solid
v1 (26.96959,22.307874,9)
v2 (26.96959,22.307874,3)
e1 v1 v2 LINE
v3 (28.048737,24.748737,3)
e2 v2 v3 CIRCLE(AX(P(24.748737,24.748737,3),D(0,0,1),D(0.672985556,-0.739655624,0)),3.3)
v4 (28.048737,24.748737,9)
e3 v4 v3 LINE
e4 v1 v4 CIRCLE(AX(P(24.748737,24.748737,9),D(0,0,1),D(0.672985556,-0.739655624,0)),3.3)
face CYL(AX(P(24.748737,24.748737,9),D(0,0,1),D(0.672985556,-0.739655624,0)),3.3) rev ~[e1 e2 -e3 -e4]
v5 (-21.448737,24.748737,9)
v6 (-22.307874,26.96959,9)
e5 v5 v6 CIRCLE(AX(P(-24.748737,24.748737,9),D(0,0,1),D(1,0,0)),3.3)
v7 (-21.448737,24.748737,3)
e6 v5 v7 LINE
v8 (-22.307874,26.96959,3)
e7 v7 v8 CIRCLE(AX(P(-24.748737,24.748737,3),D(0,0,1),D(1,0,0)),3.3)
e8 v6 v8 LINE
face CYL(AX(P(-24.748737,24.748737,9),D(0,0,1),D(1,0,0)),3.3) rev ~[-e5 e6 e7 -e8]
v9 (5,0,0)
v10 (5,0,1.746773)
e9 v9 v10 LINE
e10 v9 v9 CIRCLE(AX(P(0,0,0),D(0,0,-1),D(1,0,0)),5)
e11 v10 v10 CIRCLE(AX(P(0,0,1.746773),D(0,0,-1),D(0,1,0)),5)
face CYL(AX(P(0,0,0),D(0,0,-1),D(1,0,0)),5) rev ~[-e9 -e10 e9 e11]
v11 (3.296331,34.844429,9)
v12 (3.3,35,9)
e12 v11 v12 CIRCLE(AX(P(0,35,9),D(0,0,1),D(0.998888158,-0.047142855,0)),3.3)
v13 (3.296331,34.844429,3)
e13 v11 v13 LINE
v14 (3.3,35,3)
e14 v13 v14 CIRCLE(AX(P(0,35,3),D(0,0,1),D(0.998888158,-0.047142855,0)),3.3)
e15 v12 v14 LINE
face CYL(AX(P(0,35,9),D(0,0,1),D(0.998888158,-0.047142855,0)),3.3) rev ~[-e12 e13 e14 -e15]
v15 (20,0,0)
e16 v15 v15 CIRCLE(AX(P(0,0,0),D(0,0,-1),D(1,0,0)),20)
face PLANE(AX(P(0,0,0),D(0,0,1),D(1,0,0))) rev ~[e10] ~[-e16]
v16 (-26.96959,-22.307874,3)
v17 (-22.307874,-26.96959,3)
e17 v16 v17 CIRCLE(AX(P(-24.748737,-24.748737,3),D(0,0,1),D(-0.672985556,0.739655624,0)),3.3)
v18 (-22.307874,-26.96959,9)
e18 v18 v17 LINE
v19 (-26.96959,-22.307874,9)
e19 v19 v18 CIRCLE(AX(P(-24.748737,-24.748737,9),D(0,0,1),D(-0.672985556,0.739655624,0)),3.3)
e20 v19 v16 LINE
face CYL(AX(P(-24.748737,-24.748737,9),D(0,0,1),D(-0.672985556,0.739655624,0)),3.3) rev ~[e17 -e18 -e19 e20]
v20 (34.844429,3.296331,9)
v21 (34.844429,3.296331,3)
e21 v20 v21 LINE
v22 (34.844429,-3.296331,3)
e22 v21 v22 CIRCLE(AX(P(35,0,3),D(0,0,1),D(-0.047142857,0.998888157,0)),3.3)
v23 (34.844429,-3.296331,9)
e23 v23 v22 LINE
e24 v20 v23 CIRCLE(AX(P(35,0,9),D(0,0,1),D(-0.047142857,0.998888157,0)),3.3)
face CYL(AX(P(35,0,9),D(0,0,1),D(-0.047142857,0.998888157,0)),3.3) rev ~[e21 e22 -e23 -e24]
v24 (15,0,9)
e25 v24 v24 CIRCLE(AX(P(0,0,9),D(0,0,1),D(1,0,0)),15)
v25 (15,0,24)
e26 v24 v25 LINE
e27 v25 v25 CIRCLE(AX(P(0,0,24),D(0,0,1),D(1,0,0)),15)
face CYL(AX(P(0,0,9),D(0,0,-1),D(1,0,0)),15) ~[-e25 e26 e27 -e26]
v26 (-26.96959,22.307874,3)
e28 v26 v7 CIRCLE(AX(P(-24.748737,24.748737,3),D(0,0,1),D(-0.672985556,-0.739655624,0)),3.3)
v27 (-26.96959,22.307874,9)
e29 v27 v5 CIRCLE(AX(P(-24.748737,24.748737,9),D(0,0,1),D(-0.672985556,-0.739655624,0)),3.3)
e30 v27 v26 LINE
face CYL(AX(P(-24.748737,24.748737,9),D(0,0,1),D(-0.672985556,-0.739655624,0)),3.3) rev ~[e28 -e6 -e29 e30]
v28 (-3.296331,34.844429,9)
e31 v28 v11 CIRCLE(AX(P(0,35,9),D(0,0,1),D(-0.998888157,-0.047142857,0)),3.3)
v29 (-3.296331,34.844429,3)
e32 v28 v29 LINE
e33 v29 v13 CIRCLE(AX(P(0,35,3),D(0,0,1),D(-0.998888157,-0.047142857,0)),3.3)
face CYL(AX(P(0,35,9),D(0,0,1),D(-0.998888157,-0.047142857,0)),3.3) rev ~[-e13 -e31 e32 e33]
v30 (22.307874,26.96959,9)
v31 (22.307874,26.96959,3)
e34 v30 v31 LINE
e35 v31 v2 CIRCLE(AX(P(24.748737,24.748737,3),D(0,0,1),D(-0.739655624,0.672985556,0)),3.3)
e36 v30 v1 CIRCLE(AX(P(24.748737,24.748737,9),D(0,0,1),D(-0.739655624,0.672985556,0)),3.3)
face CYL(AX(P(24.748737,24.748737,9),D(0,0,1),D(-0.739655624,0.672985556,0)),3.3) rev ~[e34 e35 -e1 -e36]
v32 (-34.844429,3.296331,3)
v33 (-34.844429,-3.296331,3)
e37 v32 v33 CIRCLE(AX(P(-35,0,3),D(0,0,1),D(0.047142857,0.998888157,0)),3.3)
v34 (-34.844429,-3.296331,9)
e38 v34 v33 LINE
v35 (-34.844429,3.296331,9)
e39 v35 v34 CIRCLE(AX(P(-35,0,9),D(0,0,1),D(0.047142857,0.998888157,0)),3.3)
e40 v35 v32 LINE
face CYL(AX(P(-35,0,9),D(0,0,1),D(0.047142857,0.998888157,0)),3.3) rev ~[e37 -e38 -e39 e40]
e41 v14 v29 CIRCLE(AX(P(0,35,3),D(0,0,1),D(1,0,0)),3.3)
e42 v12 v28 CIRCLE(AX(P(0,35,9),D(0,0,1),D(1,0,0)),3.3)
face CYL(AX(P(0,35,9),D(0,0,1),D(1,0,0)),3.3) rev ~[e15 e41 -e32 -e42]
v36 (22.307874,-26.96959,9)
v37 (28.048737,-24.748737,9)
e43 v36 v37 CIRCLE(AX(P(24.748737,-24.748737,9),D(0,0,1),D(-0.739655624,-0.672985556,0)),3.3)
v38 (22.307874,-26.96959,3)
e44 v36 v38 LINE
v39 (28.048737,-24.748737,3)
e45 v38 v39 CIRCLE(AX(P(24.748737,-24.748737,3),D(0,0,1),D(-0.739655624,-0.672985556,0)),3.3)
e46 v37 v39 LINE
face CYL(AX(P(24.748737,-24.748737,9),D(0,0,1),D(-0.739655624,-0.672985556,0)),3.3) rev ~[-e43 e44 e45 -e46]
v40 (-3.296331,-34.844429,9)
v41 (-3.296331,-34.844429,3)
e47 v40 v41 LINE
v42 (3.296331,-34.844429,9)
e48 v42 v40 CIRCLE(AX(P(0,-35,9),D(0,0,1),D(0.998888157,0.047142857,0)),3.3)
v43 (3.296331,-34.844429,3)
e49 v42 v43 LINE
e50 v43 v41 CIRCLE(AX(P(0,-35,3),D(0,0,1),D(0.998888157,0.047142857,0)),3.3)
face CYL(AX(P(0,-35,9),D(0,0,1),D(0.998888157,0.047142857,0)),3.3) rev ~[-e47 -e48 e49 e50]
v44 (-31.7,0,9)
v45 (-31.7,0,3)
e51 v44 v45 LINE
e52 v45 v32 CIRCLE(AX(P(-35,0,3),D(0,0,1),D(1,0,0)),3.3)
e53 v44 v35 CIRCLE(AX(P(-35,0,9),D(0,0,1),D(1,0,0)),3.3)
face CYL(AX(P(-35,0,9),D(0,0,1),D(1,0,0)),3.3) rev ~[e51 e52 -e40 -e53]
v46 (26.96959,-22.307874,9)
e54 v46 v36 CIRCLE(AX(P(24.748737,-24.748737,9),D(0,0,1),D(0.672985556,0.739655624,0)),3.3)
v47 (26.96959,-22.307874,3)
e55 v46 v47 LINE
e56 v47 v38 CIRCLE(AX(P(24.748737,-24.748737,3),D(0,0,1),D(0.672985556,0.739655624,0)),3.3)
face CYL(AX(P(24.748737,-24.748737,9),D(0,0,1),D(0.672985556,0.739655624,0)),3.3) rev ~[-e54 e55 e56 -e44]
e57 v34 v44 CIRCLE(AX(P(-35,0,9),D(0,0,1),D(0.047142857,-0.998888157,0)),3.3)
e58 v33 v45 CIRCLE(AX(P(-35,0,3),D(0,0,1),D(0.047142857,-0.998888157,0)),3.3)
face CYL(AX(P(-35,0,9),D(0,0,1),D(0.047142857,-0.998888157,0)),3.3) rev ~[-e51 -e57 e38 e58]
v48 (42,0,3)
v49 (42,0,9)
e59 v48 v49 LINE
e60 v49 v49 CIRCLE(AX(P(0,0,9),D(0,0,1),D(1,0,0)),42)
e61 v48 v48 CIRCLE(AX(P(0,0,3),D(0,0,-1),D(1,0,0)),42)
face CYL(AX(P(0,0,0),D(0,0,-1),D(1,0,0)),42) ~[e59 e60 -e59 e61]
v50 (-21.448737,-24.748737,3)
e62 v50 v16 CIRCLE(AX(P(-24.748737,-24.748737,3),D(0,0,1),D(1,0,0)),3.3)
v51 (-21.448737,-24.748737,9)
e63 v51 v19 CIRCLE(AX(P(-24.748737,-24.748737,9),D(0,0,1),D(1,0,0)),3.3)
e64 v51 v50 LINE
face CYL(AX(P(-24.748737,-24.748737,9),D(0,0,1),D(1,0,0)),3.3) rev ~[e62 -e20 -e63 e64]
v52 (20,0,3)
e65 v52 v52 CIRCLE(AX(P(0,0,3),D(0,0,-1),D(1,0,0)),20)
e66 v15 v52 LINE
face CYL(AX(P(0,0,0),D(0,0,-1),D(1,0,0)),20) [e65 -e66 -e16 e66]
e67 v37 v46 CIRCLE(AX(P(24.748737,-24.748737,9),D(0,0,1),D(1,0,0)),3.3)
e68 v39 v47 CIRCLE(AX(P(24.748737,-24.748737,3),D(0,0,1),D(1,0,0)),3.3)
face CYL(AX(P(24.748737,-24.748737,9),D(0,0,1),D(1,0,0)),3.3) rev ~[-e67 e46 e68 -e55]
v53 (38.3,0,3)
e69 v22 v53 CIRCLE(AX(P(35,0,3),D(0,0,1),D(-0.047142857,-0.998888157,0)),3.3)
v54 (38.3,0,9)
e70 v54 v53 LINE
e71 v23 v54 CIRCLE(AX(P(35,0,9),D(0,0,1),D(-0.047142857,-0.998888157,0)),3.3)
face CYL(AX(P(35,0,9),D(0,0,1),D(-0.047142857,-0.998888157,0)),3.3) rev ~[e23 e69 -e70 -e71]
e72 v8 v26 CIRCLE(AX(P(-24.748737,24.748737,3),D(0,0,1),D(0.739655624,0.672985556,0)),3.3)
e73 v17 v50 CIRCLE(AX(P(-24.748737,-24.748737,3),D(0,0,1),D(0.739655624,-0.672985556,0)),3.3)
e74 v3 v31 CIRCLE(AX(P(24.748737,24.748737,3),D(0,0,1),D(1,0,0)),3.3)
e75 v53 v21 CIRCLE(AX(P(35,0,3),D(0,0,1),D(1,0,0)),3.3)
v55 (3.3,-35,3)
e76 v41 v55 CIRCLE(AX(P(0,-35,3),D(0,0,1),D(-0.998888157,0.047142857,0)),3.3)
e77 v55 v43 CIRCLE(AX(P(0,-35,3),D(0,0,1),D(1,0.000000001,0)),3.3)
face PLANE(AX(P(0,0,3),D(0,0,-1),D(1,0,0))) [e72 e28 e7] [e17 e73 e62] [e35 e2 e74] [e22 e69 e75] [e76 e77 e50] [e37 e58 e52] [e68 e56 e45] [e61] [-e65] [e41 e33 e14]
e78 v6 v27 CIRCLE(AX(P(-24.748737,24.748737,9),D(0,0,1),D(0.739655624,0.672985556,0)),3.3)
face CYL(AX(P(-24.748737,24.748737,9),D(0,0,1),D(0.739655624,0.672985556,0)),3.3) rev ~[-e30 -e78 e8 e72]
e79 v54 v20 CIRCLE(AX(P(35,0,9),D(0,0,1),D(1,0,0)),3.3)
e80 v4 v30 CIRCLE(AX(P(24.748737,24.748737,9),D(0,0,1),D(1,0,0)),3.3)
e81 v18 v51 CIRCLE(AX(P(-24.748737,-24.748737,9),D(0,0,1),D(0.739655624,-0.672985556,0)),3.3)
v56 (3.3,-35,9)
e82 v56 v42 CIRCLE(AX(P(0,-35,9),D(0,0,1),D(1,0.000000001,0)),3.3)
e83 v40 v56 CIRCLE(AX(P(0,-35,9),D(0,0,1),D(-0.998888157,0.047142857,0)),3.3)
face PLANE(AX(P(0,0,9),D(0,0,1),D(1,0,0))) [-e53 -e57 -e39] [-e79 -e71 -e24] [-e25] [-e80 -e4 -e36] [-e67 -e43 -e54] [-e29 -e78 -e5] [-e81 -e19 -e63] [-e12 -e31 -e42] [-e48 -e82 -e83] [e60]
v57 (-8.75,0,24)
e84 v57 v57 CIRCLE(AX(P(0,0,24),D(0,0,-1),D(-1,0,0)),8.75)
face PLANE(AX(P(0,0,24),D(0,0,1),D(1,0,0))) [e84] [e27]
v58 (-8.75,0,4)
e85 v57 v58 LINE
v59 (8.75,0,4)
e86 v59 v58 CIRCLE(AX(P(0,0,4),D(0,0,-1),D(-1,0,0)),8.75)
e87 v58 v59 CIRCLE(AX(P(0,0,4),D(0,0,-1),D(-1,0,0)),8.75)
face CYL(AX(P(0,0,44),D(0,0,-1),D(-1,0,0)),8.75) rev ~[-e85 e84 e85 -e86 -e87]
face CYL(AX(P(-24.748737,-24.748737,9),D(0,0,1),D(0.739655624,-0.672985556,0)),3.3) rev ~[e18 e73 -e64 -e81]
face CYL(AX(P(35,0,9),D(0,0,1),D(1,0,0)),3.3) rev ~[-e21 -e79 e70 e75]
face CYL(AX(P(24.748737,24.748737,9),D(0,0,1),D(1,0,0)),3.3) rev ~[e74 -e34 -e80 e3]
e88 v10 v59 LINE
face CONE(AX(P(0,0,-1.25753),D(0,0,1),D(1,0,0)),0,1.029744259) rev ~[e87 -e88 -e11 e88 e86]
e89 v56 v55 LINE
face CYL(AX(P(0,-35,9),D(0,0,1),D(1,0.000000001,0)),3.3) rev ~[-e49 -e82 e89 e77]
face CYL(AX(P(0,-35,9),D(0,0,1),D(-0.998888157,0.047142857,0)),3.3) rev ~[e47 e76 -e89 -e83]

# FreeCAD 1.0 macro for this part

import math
import FreeCAD as App
import Part
import Sketcher
from FreeCAD import Vector

doc = App.newDocument("Part")
body = doc.addObject("PartDesign::Body", "Body")

sketch1 = body.newObject("Sketcher::SketchObject", "Sketch")
sketch1.AttachmentSupport = (doc.getObject("XY_Plane"), [""])
sketch1.MapMode = "FlatFace"
sketch1.addGeometry(Part.Circle(Vector(0, 0, 0), Vector(0, 0, 1), 42), False)
sketch1.addConstraint(Sketcher.Constraint("Coincident", 0, 3, -1, 1))
sketch1.addConstraint(Sketcher.Constraint("Diameter", 0, 84.0))
pad1 = body.newObject("PartDesign::Pad", "Pad")
pad1.Profile = sketch1
pad1.Length = 9

sketch2 = body.newObject("Sketcher::SketchObject", "Sketch001")
sketch2.AttachmentSupport = (doc.getObject("XY_Plane"), [""])
sketch2.MapMode = "FlatFace"
sketch2.addGeometry(Part.Circle(Vector(0, 0, 0), Vector(0, 0, 1), 42), False)
sketch2.addGeometry(Part.Circle(Vector(0, 0, 0), Vector(0, 0, 1), 20), False)
sketch2.addConstraint(Sketcher.Constraint("Coincident", 0, 3, -1, 1))
sketch2.addConstraint(Sketcher.Constraint("Coincident", 1, 3, -1, 1))
sketch2.addConstraint(Sketcher.Constraint("Diameter", 0, 84.0))
sketch2.addConstraint(Sketcher.Constraint("Diameter", 1, 40.0))
pocket1 = body.newObject("PartDesign::Pocket", "Pocket")
pocket1.Profile = sketch2
pocket1.Length = 3
pocket1.Reversed = True

sketch3 = body.newObject("Sketcher::SketchObject", "Sketch002")
sketch3.AttachmentSupport = (doc.getObject("XY_Plane"), [""])
sketch3.MapMode = "FlatFace"
sketch3.AttachmentOffset = App.Placement(Vector(0, 0, 9), App.Rotation())
sketch3.addGeometry(Part.Circle(Vector(0, 0, 0), Vector(0, 0, 1), 15), False)
sketch3.addConstraint(Sketcher.Constraint("Coincident", 0, 3, -1, 1))
sketch3.addConstraint(Sketcher.Constraint("Diameter", 0, 30.0))
pad2 = body.newObject("PartDesign::Pad", "Pad001")
pad2.Profile = sketch3
pad2.Length = 15

sketch4 = body.newObject("Sketcher::SketchObject", "Sketch003")
sketch4.AttachmentSupport = (doc.getObject("XY_Plane"), [""])
sketch4.MapMode = "FlatFace"
sketch4.AttachmentOffset = App.Placement(Vector(0, 0, 9), App.Rotation())
sketch4.addGeometry(Part.ArcOfCircle(Part.Circle(Vector(0, 35, 0), Vector(0, 0, 1), 3.3), math.radians(-177), math.radians(-3)), False)
sketch4.addGeometry(Part.ArcOfCircle(Part.Circle(Vector(0, 35, 0), Vector(0, 0, 1), 3.3), math.radians(-2.7), math.radians(0)), False)
sketch4.addGeometry(Part.ArcOfCircle(Part.Circle(Vector(0, 35, 0), Vector(0, 0, 1), 3.3), math.radians(0), math.radians(183)), False)
sketch4.addGeometry(Part.ArcOfCircle(Part.Circle(Vector(-24.75, 24.75, 0), Vector(0, 0, 1), 3.3), math.radians(0), math.radians(42)), False)
sketch4.addGeometry(Part.ArcOfCircle(Part.Circle(Vector(-24.75, 24.75, 0), Vector(0, 0, 1), 3.3), math.radians(42), math.radians(228)), False)
sketch4.addGeometry(Part.ArcOfCircle(Part.Circle(Vector(-24.75, 24.75, 0), Vector(0, 0, 1), 3.3), math.radians(-132), math.radians(0)), False)
sketch4.addGeometry(Part.ArcOfCircle(Part.Circle(Vector(-35, 0, 0), Vector(0, 0, 1), 3.3), math.radians(0), math.radians(87)), False)
sketch4.addGeometry(Part.ArcOfCircle(Part.Circle(Vector(-35, 0, 0), Vector(0, 0, 1), 3.3), math.radians(87), math.radians(273)), False)
sketch4.addGeometry(Part.ArcOfCircle(Part.Circle(Vector(-35, 0, 0), Vector(0, 0, 1), 3.3), math.radians(-87), math.radians(0)), False)
sketch4.addGeometry(Part.ArcOfCircle(Part.Circle(Vector(-24.75, -24.75, 0), Vector(0, 0, 1), 3.3), math.radians(132), math.radians(318)), False)
sketch4.addGeometry(Part.ArcOfCircle(Part.Circle(Vector(-24.75, -24.75, 0), Vector(0, 0, 1), 3.3), math.radians(-42), math.radians(0)), False)
sketch4.addGeometry(Part.ArcOfCircle(Part.Circle(Vector(-24.75, -24.75, 0), Vector(0, 0, 1), 3.3), math.radians(0), math.radians(132)), False)
sketch4.addGeometry(Part.ArcOfCircle(Part.Circle(Vector(0, -35, 0), Vector(0, 0, 1), 3.3), math.radians(3), math.radians(177)), False)
sketch4.addGeometry(Part.ArcOfCircle(Part.Circle(Vector(0, -35, 0), Vector(0, 0, 1), 3.3), math.radians(177), math.radians(360)), False)
sketch4.addGeometry(Part.ArcOfCircle(Part.Circle(Vector(0, -35, 0), Vector(0, 0, 1), 3.3), math.radians(0), math.radians(2.7)), False)
sketch4.addGeometry(Part.ArcOfCircle(Part.Circle(Vector(24.75, -24.75, 0), Vector(0, 0, 1), 3.3), math.radians(0), math.radians(48)), False)
sketch4.addGeometry(Part.ArcOfCircle(Part.Circle(Vector(24.75, -24.75, 0), Vector(0, 0, 1), 3.3), math.radians(48), math.radians(222)), False)
sketch4.addGeometry(Part.ArcOfCircle(Part.Circle(Vector(24.75, -24.75, 0), Vector(0, 0, 1), 3.3), math.radians(-138), math.radians(0)), False)
sketch4.addGeometry(Part.ArcOfCircle(Part.Circle(Vector(35, 0, 0), Vector(0, 0, 1), 3.3), math.radians(-93), math.radians(0)), False)
sketch4.addGeometry(Part.ArcOfCircle(Part.Circle(Vector(35, 0, 0), Vector(0, 0, 1), 3.3), math.radians(0), math.radians(93)), False)
sketch4.addGeometry(Part.ArcOfCircle(Part.Circle(Vector(35, 0, 0), Vector(0, 0, 1), 3.3), math.radians(93), math.radians(267)), False)
sketch4.addGeometry(Part.ArcOfCircle(Part.Circle(Vector(24.75, 24.75, 0), Vector(0, 0, 1), 3.3), math.radians(138), math.radians(312)), False)
sketch4.addGeometry(Part.ArcOfCircle(Part.Circle(Vector(24.75, 24.75, 0), Vector(0, 0, 1), 3.3), math.radians(-48), math.radians(0)), False)
sketch4.addGeometry(Part.ArcOfCircle(Part.Circle(Vector(24.75, 24.75, 0), Vector(0, 0, 1), 3.3), math.radians(0), math.radians(138)), False)
sketch4.addConstraint(Sketcher.Constraint("Tangent", 0, 2, 1, 1))
sketch4.addConstraint(Sketcher.Constraint("Tangent", 1, 2, 2, 1))
sketch4.addConstraint(Sketcher.Constraint("Tangent", 2, 2, 0, 1))
sketch4.addConstraint(Sketcher.Constraint("Tangent", 3, 2, 4, 1))
sketch4.addConstraint(Sketcher.Constraint("Tangent", 4, 2, 5, 1))
sketch4.addConstraint(Sketcher.Constraint("Tangent", 5, 2, 3, 1))
sketch4.addConstraint(Sketcher.Constraint("Tangent", 6, 2, 7, 1))
sketch4.addConstraint(Sketcher.Constraint("Tangent", 7, 2, 8, 1))
sketch4.addConstraint(Sketcher.Constraint("Tangent", 8, 2, 6, 1))
sketch4.addConstraint(Sketcher.Constraint("Tangent", 9, 2, 10, 1))
sketch4.addConstraint(Sketcher.Constraint("Tangent", 10, 2, 11, 1))
sketch4.addConstraint(Sketcher.Constraint("Tangent", 11, 2, 9, 1))
sketch4.addConstraint(Sketcher.Constraint("Tangent", 12, 2, 13, 1))
sketch4.addConstraint(Sketcher.Constraint("Tangent", 13, 2, 14, 1))
sketch4.addConstraint(Sketcher.Constraint("Tangent", 14, 2, 12, 1))
sketch4.addConstraint(Sketcher.Constraint("Tangent", 15, 2, 16, 1))
sketch4.addConstraint(Sketcher.Constraint("Tangent", 16, 2, 17, 1))
sketch4.addConstraint(Sketcher.Constraint("Tangent", 17, 2, 15, 1))
sketch4.addConstraint(Sketcher.Constraint("Tangent", 18, 2, 19, 1))
sketch4.addConstraint(Sketcher.Constraint("Tangent", 19, 2, 20, 1))
sketch4.addConstraint(Sketcher.Constraint("Tangent", 20, 2, 18, 1))
sketch4.addConstraint(Sketcher.Constraint("Tangent", 21, 2, 22, 1))
sketch4.addConstraint(Sketcher.Constraint("Tangent", 22, 2, 23, 1))
sketch4.addConstraint(Sketcher.Constraint("Tangent", 23, 2, 21, 1))
sketch4.addConstraint(Sketcher.Constraint("Equal", 2, 3))
sketch4.addConstraint(Sketcher.Constraint("Equal", 5, 6))
sketch4.addConstraint(Sketcher.Constraint("Equal", 8, 9))
sketch4.addConstraint(Sketcher.Constraint("Equal", 11, 12))
sketch4.addConstraint(Sketcher.Constraint("Equal", 14, 15))
sketch4.addConstraint(Sketcher.Constraint("Equal", 17, 18))
sketch4.addConstraint(Sketcher.Constraint("Equal", 20, 21))
sketch4.addConstraint(Sketcher.Constraint("Symmetric", 0, 3, 12, 3, -1, 1))
sketch4.addConstraint(Sketcher.Constraint("Symmetric", 3, 3, 15, 3, -1, 1))
sketch4.addConstraint(Sketcher.Constraint("Symmetric", 6, 3, 18, 3, -1, 1))
sketch4.addConstraint(Sketcher.Constraint("Symmetric", 9, 3, 21, 3, -1, 1))
sketch4.addConstraint(Sketcher.Constraint("Symmetric", 9, 3, 15, 3, -2))
sketch4.addConstraint(Sketcher.Constraint("Symmetric", 0, 2, 2, 2, -2))
sketch4.addConstraint(Sketcher.Constraint("Symmetric", 6, 2, 19, 2, -2))
sketch4.addConstraint(Sketcher.Constraint("PointOnObject", 8, 2, -1))
sketch4.addConstraint(Sketcher.Constraint("PointOnObject", 18, 2, -1))
sketch4.addConstraint(Sketcher.Constraint("Horizontal", 2, 3, 1, 2))
sketch4.addConstraint(Sketcher.Constraint("Horizontal", 23, 3, 5, 2))
sketch4.addConstraint(Sketcher.Constraint("Horizontal", 17, 3, 10, 2))
sketch4.addConstraint(Sketcher.Constraint("Horizontal", 14, 3, 13, 2))
sketch4.addConstraint(Sketcher.Constraint("Horizontal", 12, 2, 14, 2))
sketch4.addConstraint(Sketcher.Constraint("Horizontal", 11, 2, 15, 2))
sketch4.addConstraint(Sketcher.Constraint("Horizontal", 9, 2, 16, 2))
sketch4.addConstraint(Sketcher.Constraint("Horizontal", 10, 2, 17, 2))
sketch4.addConstraint(Sketcher.Constraint("Horizontal", 7, 2, 20, 2))
sketch4.addConstraint(Sketcher.Constraint("Horizontal", 4, 2, 21, 2))
sketch4.addConstraint(Sketcher.Constraint("Horizontal", 5, 2, 22, 2))
sketch4.addConstraint(Sketcher.Constraint("Horizontal", 3, 2, 23, 2))
sketch4.addConstraint(Sketcher.Constraint("Vertical", 6, 2, 7, 2))
sketch4.addConstraint(Sketcher.Constraint("Vertical", 3, 2, 9, 2))
sketch4.addConstraint(Sketcher.Constraint("Vertical", 4, 2, 11, 2))
sketch4.addConstraint(Sketcher.Constraint("Vertical", 2, 2, 12, 2))
sketch4.addConstraint(Sketcher.Constraint("Radius", 0, 3.3))
sketch4.addConstraint(Sketcher.Constraint("DistanceY", -1, 1, 0, 3, 35.0))
sketch4.addConstraint(Sketcher.Constraint("DistanceX", 6, 3, -1, 1, 35.0))
sketch4.addConstraint(Sketcher.Constraint("DistanceX", -1, 1, 0, 2, 3.296331))
sketch4.addConstraint(Sketcher.Constraint("DistanceY", -1, 1, 3, 2, 26.96959))
sketch4.addConstraint(Sketcher.Constraint("DistanceX", 4, 2, -1, 1, 26.96959))
sketch4.addConstraint(Sketcher.Constraint("DistanceX", 6, 2, -1, 1, 34.844429))
sketch4.addConstraint(Sketcher.Constraint("DistanceY", 23, 3, 0, 2, 10.095691))
sketch4.addConstraint(Sketcher.Constraint("DistanceX", 6, 2, 3, 3, 10.095691))
pocket2 = body.newObject("PartDesign::Pocket", "Pocket001")
pocket2.Profile = sketch4
pocket2.Length = 25

sketch5 = body.newObject("Sketcher::SketchObject", "Sketch004")
sketch5.AttachmentSupport = (doc.getObject("XY_Plane"), [""])
sketch5.MapMode = "FlatFace"
sketch5.addGeometry(Part.Circle(Vector(0, 0, 0), Vector(0, 0, 1), 5), False)
sketch5.addConstraint(Sketcher.Constraint("Coincident", 0, 3, -1, 1))
sketch5.addConstraint(Sketcher.Constraint("Diameter", 0, 10.0))
pocket3 = body.newObject("PartDesign::Pocket", "Pocket002")
pocket3.Profile = sketch5
pocket3.Type = "ThroughAll"
pocket3.Reversed = True

sketch6 = body.newObject("Sketcher::SketchObject", "Sketch005")
sketch6.AttachmentSupport = (doc.getObject("XY_Plane"), [""])
sketch6.MapMode = "FlatFace"
sketch6.AttachmentOffset = App.Placement(Vector(0, 0, 24), App.Rotation())
sketch6.addGeometry(Part.Circle(Vector(0, 0, 0), Vector(0, 0, 1), 9), False)
sketch6.addConstraint(Sketcher.Constraint("Coincident", 0, 3, -1, 1))
sketch6.addConstraint(Sketcher.Constraint("Diameter", 0, 17.5))
doc.recompute()
hole = body.newObject("PartDesign::Hole", "Hole")
hole.Profile = sketch6
hole.ThreadType = "None"
hole.Diameter = 17.5
hole.DepthType = "Dimension"
hole.Depth = 20
hole.DrillPoint = "Angled"
hole.DrillPointAngle = 118

doc.recompute()
